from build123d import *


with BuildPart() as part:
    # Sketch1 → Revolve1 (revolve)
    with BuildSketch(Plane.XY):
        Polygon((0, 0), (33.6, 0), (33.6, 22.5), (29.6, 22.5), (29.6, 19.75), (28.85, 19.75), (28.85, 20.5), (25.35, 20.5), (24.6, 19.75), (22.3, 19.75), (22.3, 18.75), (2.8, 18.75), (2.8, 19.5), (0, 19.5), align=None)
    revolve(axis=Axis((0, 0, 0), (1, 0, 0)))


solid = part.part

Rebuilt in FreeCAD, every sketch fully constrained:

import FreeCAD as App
import Part
import Sketcher
from FreeCAD import Vector
Q = App.Units.Quantity

doc = App.newDocument("Part")
body = doc.addObject("PartDesign::Body", "Body")

# Sketch on XY plane
sketch1 = body.newObject("Sketcher::SketchObject", "Sketch")
sketch1.AttachmentSupport = (doc.getObject("XY_Plane"), [""])
sketch1.MapMode = "FlatFace"
sketch1.addGeometry(Part.LineSegment(Vector(0, 0, 0), Vector(33.6, 0, 0)), False)
sketch1.addGeometry(Part.LineSegment(Vector(33.6, 0, 0), Vector(33.6, 22.5, 0)), False)
sketch1.addGeometry(Part.LineSegment(Vector(33.6, 22.5, 0), Vector(29.6, 22.5, 0)), False)
sketch1.addGeometry(Part.LineSegment(Vector(29.6, 22.5, 0), Vector(29.6, 19.8, 0)), False)
sketch1.addGeometry(Part.LineSegment(Vector(29.6, 19.8, 0), Vector(28.9, 19.8, 0)), False)
sketch1.addGeometry(Part.LineSegment(Vector(28.9, 19.8, 0), Vector(28.9, 20.5, 0)), False)
sketch1.addGeometry(Part.LineSegment(Vector(28.9, 20.5, 0), Vector(25.4, 20.5, 0)), False)
sketch1.addGeometry(Part.LineSegment(Vector(25.4, 20.5, 0), Vector(24.6, 19.8, 0)), False)
sketch1.addGeometry(Part.LineSegment(Vector(24.6, 19.8, 0), Vector(22.3, 19.8, 0)), False)
sketch1.addGeometry(Part.LineSegment(Vector(22.3, 19.8, 0), Vector(22.3, 18.8, 0)), False)
sketch1.addGeometry(Part.LineSegment(Vector(22.3, 18.8, 0), Vector(2.8, 18.8, 0)), False)
sketch1.addGeometry(Part.LineSegment(Vector(2.8, 18.8, 0), Vector(2.8, 19.5, 0)), False)
sketch1.addGeometry(Part.LineSegment(Vector(2.8, 19.5, 0), Vector(0, 19.5, 0)), False)
sketch1.addGeometry(Part.LineSegment(Vector(0, 19.5, 0), Vector(0, 0, 0)), False)
sketch1.addConstraint(Sketcher.Constraint("Coincident", 0, 2, 1, 1))
sketch1.addConstraint(Sketcher.Constraint("Coincident", 1, 2, 2, 1))
sketch1.addConstraint(Sketcher.Constraint("Coincident", 2, 2, 3, 1))
sketch1.addConstraint(Sketcher.Constraint("Coincident", 3, 2, 4, 1))
sketch1.addConstraint(Sketcher.Constraint("Coincident", 4, 2, 5, 1))
sketch1.addConstraint(Sketcher.Constraint("Coincident", 5, 2, 6, 1))
sketch1.addConstraint(Sketcher.Constraint("Coincident", 6, 2, 7, 1))
sketch1.addConstraint(Sketcher.Constraint("Coincident", 7, 2, 8, 1))
sketch1.addConstraint(Sketcher.Constraint("Coincident", 8, 2, 9, 1))
sketch1.addConstraint(Sketcher.Constraint("Coincident", 9, 2, 10, 1))
sketch1.addConstraint(Sketcher.Constraint("Coincident", 10, 2, 11, 1))
sketch1.addConstraint(Sketcher.Constraint("Coincident", 11, 2, 12, 1))
sketch1.addConstraint(Sketcher.Constraint("Coincident", 12, 2, 13, 1))
sketch1.addConstraint(Sketcher.Constraint("Coincident", 13, 2, 0, 1))
sketch1.addConstraint(Sketcher.Constraint("Horizontal", 0))
sketch1.addConstraint(Sketcher.Constraint("Vertical", 1))
sketch1.addConstraint(Sketcher.Constraint("Horizontal", 2))
sketch1.addConstraint(Sketcher.Constraint("Vertical", 3))
sketch1.addConstraint(Sketcher.Constraint("Horizontal", 4))
sketch1.addConstraint(Sketcher.Constraint("Vertical", 5))
sketch1.addConstraint(Sketcher.Constraint("Horizontal", 6))
sketch1.addConstraint(Sketcher.Constraint("Horizontal", 8))
sketch1.addConstraint(Sketcher.Constraint("Vertical", 9))
sketch1.addConstraint(Sketcher.Constraint("Horizontal", 10))
sketch1.addConstraint(Sketcher.Constraint("Vertical", 11))
sketch1.addConstraint(Sketcher.Constraint("Horizontal", 12))
sketch1.addConstraint(Sketcher.Constraint("Vertical", 13))
sketch1.addConstraint(Sketcher.Constraint("Coincident", 13, 2, -1, 1))
sketch1.addConstraint(Sketcher.Constraint("Horizontal", 4, 2, 7, 2))
sketch1.addConstraint(Sketcher.Constraint("Equal", 4, 5))
sketch1.addConstraint(Sketcher.Constraint("Equal", 5, 11))
sketch1.addConstraint(Sketcher.Constraint("Equal", 10, 13))
sketch1.addConstraint(Sketcher.Constraint("DistanceX", 2, 2, 2, 1, 4.0))
sketch1.addConstraint(Sketcher.Constraint("DistanceY", 9, 2, 9, 1, 1.0))
sketch1.addConstraint(Sketcher.Constraint("Angle", 7, Q("-135 deg")))
sketch1.addConstraint(Sketcher.Constraint("DistanceX", 0, 1, 0, 2, 33.6))
sketch1.addConstraint(Sketcher.Constraint("DistanceX", 6, 2, 6, 1, 3.5))
sketch1.addConstraint(Sketcher.Constraint("DistanceX", 8, 2, 8, 1, 2.3))
sketch1.addConstraint(Sketcher.Constraint("DistanceX", 10, 2, 10, 1, 19.5))
sketch1.addConstraint(Sketcher.Constraint("DistanceX", 12, 2, 12, 1, 2.8))
sketch1.addConstraint(Sketcher.Constraint("DistanceY", 1, 1, 1, 2, 22.5))
revolution = body.newObject("PartDesign::Revolution", "Revolution")
revolution.Profile = sketch1
revolution.ReferenceAxis = (sketch1, ["H_Axis"])
revolution.Angle = 360

doc.recompute()
